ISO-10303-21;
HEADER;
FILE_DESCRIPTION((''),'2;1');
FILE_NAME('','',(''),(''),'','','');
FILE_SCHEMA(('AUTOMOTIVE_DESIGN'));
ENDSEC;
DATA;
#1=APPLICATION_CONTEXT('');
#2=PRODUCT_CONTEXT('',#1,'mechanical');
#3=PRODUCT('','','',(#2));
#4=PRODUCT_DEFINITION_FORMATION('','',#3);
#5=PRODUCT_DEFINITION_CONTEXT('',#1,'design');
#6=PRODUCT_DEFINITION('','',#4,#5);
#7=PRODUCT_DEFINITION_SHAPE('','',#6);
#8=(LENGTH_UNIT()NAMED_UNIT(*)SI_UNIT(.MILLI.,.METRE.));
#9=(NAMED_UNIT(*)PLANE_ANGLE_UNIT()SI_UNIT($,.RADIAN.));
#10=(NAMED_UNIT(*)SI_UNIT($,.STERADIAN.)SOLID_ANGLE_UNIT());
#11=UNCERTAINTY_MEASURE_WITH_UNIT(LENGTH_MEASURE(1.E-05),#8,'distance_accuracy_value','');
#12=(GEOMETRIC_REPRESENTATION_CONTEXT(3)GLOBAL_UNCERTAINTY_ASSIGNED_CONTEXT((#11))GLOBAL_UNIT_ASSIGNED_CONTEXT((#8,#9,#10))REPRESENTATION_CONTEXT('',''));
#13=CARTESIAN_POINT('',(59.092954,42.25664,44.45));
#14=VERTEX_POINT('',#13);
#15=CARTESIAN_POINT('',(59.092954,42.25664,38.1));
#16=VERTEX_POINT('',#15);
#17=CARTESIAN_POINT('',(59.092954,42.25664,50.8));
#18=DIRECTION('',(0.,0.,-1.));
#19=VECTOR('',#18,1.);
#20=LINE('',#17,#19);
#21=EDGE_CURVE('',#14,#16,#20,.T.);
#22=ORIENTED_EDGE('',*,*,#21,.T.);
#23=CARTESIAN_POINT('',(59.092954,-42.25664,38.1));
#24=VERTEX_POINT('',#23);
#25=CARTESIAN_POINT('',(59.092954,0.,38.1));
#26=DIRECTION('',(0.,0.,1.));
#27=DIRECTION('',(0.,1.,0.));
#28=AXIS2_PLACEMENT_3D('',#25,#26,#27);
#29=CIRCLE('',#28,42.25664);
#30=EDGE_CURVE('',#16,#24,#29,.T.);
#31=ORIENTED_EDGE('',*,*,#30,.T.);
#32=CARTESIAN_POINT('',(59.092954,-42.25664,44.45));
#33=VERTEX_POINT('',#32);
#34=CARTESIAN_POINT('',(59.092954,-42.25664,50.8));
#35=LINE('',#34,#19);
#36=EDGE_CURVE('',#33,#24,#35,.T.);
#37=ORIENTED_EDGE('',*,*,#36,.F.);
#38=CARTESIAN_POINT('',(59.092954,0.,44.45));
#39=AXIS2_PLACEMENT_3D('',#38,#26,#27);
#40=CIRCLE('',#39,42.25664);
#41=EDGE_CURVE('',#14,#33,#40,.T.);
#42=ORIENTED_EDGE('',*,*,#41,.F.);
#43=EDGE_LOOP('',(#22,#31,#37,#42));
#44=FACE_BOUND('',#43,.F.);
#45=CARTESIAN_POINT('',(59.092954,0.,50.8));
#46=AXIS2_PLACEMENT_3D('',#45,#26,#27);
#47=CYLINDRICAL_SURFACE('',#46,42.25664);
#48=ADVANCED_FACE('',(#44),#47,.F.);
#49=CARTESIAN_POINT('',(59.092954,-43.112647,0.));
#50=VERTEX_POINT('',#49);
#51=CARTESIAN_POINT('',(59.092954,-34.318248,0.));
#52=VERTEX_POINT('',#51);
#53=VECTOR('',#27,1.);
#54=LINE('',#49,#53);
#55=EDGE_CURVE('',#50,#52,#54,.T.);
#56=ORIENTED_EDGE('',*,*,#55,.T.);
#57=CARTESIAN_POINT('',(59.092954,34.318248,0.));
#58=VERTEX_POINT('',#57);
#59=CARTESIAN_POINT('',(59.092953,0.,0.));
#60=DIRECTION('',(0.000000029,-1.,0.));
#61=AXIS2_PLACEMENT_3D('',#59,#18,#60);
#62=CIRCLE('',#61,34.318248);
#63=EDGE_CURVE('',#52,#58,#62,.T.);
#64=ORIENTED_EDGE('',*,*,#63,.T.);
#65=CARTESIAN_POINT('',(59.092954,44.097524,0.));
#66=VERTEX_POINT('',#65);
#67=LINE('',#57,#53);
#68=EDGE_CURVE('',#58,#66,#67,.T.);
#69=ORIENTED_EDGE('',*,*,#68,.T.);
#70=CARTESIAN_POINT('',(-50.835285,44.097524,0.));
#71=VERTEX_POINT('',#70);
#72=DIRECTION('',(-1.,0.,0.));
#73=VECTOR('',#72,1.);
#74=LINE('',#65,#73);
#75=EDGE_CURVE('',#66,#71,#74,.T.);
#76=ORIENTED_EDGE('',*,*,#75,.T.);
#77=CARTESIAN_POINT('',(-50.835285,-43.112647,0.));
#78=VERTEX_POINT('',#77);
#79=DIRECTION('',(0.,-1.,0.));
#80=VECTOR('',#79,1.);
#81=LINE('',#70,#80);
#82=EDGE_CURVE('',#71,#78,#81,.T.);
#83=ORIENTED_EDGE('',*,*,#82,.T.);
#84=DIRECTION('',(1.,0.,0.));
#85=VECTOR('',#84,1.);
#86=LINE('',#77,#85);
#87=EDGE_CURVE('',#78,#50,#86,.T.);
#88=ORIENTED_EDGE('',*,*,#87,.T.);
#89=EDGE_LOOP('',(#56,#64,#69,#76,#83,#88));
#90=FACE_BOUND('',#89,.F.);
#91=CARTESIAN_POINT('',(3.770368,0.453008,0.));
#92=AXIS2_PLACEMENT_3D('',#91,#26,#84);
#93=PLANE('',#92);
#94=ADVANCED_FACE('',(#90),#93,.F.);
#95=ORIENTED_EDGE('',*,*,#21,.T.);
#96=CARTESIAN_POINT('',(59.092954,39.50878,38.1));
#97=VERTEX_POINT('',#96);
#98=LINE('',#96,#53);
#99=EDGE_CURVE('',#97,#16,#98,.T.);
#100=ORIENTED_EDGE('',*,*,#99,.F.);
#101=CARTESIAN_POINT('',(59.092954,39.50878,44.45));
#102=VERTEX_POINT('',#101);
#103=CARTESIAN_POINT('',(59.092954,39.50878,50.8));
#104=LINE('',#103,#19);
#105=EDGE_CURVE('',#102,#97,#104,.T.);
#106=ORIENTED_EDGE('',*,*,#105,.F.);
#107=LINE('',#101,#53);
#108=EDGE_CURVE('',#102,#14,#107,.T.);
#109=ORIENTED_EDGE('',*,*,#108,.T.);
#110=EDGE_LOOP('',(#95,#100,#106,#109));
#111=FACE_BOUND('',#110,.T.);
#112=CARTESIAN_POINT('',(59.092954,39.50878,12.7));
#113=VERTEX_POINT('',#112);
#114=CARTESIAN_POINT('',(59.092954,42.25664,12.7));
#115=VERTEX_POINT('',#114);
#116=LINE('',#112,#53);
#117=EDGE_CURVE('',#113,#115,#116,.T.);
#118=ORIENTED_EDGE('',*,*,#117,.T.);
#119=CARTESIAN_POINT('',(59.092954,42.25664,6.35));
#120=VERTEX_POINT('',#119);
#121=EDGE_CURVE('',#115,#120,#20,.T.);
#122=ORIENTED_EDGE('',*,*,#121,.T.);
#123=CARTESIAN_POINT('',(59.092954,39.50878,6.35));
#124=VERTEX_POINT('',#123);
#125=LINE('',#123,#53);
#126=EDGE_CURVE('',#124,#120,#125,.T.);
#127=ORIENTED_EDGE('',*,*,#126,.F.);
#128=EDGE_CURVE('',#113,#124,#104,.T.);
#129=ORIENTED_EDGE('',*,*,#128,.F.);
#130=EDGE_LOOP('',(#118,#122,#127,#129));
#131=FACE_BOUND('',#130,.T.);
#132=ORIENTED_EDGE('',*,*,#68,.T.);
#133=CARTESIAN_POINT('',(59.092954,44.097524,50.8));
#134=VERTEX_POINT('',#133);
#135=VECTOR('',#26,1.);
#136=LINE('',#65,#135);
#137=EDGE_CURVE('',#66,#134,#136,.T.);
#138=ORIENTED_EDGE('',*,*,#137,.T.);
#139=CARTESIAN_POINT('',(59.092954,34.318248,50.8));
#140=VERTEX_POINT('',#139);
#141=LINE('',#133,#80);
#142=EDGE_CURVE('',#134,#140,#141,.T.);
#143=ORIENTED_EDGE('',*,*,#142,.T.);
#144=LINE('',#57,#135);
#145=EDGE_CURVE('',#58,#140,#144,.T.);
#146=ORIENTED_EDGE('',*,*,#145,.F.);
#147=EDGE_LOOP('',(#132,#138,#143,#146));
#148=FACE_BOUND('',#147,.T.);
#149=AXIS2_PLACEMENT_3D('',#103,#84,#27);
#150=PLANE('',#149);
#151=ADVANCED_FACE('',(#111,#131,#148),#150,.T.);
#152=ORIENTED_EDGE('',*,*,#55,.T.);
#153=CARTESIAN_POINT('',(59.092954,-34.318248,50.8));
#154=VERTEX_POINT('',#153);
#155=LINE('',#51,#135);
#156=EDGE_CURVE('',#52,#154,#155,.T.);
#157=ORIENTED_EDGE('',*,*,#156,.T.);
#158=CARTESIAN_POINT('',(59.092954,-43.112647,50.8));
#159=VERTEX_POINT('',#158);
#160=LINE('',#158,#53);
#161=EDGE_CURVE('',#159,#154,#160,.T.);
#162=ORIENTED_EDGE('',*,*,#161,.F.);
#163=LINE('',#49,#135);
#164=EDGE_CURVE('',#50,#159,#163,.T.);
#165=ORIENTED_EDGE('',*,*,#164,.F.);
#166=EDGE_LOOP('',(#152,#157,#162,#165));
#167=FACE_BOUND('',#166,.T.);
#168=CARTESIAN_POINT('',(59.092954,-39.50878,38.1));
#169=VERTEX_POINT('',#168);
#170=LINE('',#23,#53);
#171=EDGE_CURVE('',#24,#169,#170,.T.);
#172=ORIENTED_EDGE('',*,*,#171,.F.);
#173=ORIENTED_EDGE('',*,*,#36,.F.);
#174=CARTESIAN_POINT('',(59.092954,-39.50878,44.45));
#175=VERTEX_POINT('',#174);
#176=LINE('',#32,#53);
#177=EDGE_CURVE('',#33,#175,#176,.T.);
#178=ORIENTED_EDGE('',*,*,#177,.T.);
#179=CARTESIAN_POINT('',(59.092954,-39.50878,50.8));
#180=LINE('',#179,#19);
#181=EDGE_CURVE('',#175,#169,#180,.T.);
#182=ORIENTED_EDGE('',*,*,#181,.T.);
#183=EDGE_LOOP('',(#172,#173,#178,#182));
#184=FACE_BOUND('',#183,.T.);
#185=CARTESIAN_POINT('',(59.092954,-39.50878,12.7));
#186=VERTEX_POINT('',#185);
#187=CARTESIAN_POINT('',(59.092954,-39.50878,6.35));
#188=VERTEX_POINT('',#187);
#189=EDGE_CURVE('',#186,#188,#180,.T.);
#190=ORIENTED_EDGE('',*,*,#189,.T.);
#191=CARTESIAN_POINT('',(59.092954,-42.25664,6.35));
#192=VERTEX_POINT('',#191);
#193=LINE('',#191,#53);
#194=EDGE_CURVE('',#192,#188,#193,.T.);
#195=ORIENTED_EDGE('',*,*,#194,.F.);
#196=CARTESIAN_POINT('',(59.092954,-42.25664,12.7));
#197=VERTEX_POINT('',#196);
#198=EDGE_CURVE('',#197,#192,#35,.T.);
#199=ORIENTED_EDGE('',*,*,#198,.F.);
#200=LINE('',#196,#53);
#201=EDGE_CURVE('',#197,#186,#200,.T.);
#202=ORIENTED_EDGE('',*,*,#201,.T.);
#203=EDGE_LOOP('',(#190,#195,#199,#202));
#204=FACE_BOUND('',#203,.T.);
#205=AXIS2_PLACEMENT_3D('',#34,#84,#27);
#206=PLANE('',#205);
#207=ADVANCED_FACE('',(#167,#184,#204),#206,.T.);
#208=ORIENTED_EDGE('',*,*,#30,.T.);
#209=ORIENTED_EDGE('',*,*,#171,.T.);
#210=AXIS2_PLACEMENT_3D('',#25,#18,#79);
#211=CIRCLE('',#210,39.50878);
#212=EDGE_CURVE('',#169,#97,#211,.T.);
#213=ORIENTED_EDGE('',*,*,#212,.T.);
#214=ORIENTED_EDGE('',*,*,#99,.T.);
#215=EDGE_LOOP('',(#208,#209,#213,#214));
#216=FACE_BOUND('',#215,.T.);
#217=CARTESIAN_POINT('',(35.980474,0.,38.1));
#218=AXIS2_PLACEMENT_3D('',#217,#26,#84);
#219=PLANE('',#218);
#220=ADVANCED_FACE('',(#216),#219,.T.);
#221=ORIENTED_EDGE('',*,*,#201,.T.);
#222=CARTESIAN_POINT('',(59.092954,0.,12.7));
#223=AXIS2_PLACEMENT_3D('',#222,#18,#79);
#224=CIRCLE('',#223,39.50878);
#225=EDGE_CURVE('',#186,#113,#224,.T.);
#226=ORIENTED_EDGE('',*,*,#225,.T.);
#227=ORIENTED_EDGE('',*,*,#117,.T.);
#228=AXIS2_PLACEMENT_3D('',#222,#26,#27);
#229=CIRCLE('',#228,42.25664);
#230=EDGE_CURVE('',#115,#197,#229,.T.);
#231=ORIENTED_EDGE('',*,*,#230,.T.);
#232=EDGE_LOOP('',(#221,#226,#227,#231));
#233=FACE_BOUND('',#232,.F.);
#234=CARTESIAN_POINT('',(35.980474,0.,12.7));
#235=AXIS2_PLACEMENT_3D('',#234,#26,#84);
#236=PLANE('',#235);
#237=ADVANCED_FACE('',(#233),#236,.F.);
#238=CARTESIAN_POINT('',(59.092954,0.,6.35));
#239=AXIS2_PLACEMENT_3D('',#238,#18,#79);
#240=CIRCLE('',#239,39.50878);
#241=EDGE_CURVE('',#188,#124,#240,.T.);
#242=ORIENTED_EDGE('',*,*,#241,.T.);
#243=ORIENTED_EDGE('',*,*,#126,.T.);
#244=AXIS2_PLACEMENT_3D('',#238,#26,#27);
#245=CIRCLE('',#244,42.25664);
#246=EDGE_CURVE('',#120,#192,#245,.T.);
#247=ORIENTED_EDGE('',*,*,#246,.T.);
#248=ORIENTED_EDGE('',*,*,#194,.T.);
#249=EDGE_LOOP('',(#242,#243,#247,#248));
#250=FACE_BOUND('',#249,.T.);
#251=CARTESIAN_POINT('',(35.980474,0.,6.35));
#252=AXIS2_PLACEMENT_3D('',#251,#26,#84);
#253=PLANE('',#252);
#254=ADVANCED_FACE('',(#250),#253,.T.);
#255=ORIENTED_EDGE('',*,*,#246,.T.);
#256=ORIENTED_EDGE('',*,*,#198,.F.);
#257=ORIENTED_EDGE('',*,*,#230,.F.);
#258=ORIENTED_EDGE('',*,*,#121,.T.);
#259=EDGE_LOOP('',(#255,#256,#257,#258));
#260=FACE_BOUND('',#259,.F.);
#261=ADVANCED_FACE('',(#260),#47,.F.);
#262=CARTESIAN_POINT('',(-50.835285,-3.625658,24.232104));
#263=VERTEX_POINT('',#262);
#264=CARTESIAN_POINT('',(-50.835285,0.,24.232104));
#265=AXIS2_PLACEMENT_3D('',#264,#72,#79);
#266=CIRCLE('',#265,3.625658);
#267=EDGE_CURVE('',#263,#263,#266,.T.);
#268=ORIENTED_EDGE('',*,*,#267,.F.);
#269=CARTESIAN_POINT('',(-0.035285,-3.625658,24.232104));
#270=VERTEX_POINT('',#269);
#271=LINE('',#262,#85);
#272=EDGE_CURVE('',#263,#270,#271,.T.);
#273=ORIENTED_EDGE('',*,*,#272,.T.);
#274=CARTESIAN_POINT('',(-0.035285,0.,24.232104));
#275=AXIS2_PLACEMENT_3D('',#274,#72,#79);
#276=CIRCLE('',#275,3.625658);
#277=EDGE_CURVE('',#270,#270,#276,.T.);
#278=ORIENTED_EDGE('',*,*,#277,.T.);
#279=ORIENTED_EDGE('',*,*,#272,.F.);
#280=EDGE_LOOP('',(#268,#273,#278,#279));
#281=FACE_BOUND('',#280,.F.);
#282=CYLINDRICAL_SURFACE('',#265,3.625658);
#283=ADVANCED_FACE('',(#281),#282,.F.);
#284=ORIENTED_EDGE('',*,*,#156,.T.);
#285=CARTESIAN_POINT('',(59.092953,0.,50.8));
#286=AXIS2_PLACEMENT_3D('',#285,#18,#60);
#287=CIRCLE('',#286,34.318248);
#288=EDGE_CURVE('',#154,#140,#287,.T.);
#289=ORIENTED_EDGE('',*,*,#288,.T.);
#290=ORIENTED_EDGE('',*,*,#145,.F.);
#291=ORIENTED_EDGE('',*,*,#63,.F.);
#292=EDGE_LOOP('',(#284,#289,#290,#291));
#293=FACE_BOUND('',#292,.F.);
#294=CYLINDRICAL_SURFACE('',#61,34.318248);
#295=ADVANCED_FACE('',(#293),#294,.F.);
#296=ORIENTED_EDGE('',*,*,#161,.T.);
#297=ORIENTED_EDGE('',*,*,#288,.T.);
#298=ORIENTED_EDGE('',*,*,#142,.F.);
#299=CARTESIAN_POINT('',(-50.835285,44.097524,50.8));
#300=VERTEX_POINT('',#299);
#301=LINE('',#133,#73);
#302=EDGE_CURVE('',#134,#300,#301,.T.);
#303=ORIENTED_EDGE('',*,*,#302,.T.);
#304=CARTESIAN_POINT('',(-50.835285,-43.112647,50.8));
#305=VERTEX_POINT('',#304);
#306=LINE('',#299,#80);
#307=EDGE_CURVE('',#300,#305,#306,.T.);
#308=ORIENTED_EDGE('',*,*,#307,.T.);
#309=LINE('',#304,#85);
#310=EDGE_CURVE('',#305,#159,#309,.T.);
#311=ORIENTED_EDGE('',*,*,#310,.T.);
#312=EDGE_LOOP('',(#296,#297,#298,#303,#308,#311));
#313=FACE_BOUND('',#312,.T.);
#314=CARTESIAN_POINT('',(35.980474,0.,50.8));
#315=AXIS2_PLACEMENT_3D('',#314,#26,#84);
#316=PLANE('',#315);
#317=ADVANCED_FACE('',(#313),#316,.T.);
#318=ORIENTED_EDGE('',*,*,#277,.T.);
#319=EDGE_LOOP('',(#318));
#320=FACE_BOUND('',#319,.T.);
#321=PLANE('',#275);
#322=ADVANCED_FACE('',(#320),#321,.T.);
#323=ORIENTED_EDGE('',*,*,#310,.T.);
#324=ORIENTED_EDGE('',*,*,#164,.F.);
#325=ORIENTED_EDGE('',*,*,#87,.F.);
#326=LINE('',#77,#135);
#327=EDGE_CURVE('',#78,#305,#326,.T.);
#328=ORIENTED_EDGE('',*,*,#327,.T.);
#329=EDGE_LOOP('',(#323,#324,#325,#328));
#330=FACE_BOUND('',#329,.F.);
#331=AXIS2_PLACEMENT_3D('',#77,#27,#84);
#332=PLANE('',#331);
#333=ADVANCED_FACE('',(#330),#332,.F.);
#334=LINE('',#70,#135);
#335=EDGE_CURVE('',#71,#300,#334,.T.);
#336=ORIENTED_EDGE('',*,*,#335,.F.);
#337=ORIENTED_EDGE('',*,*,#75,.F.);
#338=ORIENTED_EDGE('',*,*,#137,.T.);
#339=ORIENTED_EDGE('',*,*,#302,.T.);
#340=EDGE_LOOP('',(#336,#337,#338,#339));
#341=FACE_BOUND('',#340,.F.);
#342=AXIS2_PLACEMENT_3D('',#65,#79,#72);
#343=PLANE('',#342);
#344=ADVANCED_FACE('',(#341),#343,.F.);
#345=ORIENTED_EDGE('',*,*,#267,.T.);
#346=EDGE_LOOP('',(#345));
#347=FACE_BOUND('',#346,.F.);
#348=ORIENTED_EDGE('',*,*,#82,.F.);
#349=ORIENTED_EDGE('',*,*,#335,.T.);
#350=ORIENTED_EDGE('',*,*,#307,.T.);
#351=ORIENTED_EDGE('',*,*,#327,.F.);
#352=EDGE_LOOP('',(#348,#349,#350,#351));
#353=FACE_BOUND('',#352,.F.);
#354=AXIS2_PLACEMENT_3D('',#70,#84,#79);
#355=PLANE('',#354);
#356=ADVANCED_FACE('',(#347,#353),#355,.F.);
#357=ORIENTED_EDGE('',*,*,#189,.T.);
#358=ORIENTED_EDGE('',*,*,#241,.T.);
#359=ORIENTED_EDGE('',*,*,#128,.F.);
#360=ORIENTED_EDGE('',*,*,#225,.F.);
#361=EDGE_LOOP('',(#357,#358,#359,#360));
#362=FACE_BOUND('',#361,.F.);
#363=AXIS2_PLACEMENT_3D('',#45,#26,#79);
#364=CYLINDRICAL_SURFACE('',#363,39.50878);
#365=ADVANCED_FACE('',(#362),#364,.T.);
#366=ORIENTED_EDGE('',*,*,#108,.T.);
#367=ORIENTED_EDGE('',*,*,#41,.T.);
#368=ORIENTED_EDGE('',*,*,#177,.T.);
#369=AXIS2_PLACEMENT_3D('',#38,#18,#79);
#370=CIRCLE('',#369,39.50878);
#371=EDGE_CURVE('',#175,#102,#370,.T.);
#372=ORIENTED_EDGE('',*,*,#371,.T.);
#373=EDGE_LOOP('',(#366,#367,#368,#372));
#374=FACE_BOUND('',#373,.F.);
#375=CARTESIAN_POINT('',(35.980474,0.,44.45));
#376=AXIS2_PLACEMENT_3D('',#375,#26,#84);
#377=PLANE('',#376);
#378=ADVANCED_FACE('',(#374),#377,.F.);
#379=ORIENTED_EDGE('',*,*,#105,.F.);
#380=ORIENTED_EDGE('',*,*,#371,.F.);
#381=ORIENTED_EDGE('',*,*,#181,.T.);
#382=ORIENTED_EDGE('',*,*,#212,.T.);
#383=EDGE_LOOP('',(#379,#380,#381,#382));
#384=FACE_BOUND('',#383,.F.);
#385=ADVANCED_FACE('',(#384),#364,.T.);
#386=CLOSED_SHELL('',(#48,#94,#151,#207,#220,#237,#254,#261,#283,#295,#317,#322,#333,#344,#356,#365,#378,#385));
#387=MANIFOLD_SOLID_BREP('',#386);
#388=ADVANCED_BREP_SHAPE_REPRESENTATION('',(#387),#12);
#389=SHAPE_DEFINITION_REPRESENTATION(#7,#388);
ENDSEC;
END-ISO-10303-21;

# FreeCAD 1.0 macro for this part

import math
import FreeCAD as App
import Part
import Sketcher
from FreeCAD import Vector
Q = App.Units.Quantity

doc = App.newDocument("Part")
body = doc.addObject("PartDesign::Body", "Body")

# Sketch on XY plane
sketch1 = body.newObject("Sketcher::SketchObject", "Sketch")
sketch1.AttachmentSupport = (doc.getObject("XY_Plane"), [""])
sketch1.MapMode = "FlatFace"
sketch1.addGeometry([
    Part.LineSegment(Vector(59, 44, 0), Vector(-51, 44, 0)),  # 0
    Part.LineSegment(Vector(-51, 44, 0), Vector(-51, -43, 0)),  # 1
    Part.LineSegment(Vector(-51, -43, 0), Vector(59, -43, 0)),  # 2
    Part.LineSegment(Vector(59, -43, 0), Vector(59, -34, 0)),  # 3
    Part.ArcOfCircle(Part.Circle(Vector(59, 0, 0), Vector(0, 0, 1), 34), math.radians(90), math.radians(270)),  # 4
    Part.LineSegment(Vector(59, 34, 0), Vector(59, 44, 0)),  # 5
], False)
sketch1.addConstraint([
    Sketcher.Constraint("Coincident", 0, 2, 1, 1),
    Sketcher.Constraint("Coincident", 1, 2, 2, 1),
    Sketcher.Constraint("Coincident", 2, 2, 3, 1),
    Sketcher.Constraint("Coincident", 3, 2, 4, 2),
    Sketcher.Constraint("Coincident", 4, 1, 5, 1),
    Sketcher.Constraint("Coincident", 5, 2, 0, 1),
    Sketcher.Constraint("Horizontal", 0),
    Sketcher.Constraint("Vertical", 1),
    Sketcher.Constraint("Horizontal", 2),
    Sketcher.Constraint("Vertical", 3),
    Sketcher.Constraint("Vertical", 5),
    Sketcher.Constraint("Symmetric", 3, 2, 4, 1, -1),
    Sketcher.Constraint("Vertical", 4, 3, 2, 2),
    Sketcher.Constraint("DistanceY", 3, 1, 3, 2, 8.794399),
    Sketcher.Constraint("Radius", 4, 34.318248),
    Sketcher.Constraint("DistanceX", 0, 2, 0, 1, 109.928239),
    Sketcher.Constraint("DistanceY", 1, 2, 1, 1, 87.210171),
    Sketcher.Constraint("DistanceX", -1, 1, 4, 3, 59.092953),
])
pad1 = body.newObject("PartDesign::Pad", "Pad")
pad1.Profile = sketch1
pad1.Length = Q("2 in")

# Sketch on YZ plane
sketch2 = body.newObject("Sketcher::SketchObject", "Sketch001")
sketch2.AttachmentSupport = (doc.getObject("YZ_Plane"), [""])
sketch2.MapMode = "FlatFace"
sketch2.AttachmentOffset = App.Placement(Vector(0, 0, -50.835285), App.Rotation())
sketch2.addGeometry(Part.Circle(Vector(0, 24.2, 0), Vector(0, 0, 1), 3.6), False)
sketch2.addConstraint([
    Sketcher.Constraint("PointOnObject", 0, 3, -2),
    Sketcher.Constraint("Diameter", 0, 7.251316),
    Sketcher.Constraint("DistanceY", -1, 1, 0, 3, 24.232104),
])
pocket1 = body.newObject("PartDesign::Pocket", "Pocket")
pocket1.Profile = sketch2
pocket1.Length = Q("2 in")
pocket1.Reversed = True

# Sketch on XY plane
sketch3 = body.newObject("Sketcher::SketchObject", "Sketch002")
sketch3.AttachmentSupport = (doc.getObject("XY_Plane"), [""])
sketch3.MapMode = "FlatFace"
sketch3.AttachmentOffset = App.Placement(Vector(0, 0, 2 * 25.4), App.Rotation())
sketch3.addGeometry([
    Part.ArcOfCircle(Part.Circle(Vector(59.1, 0, 0), Vector(0, 0, 1), 39.5), math.radians(90), math.radians(270)),
    Part.LineSegment(Vector(59.1, 39.5, 0), Vector(59.1, 42.3, 0)),
    Part.ArcOfCircle(Part.Circle(Vector(59.1, 0, 0), Vector(0, 0, 1), 42.3), math.radians(90), math.radians(270)),
    Part.LineSegment(Vector(59.1, -42.3, 0), Vector(59.1, -39.5, 0)),
], False)
sketch3.addConstraint([
    Sketcher.Constraint("Coincident", 0, 1, 1, 1),
    Sketcher.Constraint("Coincident", 1, 2, 2, 1),
    Sketcher.Constraint("Coincident", 2, 2, 3, 1),
    Sketcher.Constraint("Coincident", 3, 2, 0, 2),
    Sketcher.Constraint("Vertical", 1),
    Sketcher.Constraint("Vertical", 3),
    Sketcher.Constraint("Coincident", 2, 3, 0, 3),
    Sketcher.Constraint("Symmetric", 1, 2, 2, 2, -1),
    Sketcher.Constraint("Vertical", 2, 3, 0, 1),
    Sketcher.Constraint("Radius", 0, 39.50878),
    Sketcher.Constraint("Radius", 2, 42.25664),
    Sketcher.Constraint("DistanceX", -1, 1, 0, 3, 59.092954),
])
pocket2 = body.newObject("PartDesign::Pocket", "Pocket001")
pocket2.Profile = sketch3
pocket2.Length = Q("1.75 in")

# Sketch on XY plane
sketch4 = body.newObject("Sketcher::SketchObject", "Sketch003")
sketch4.AttachmentSupport = (doc.getObject("XY_Plane"), [""])
sketch4.MapMode = "FlatFace"
sketch4.AttachmentOffset = App.Placement(Vector(0, 0, 2 * 25.4), App.Rotation())
sketch4.addGeometry([
    Part.ArcOfCircle(Part.Circle(Vector(59.1, 0, 0), Vector(0, 0, 1), 39.5), math.radians(90), math.radians(270)),
    Part.LineSegment(Vector(59.1, 39.5, 0), Vector(59.1, 42.3, 0)),
    Part.ArcOfCircle(Part.Circle(Vector(59.1, 0, 0), Vector(0, 0, 1), 42.3), math.radians(90), math.radians(270)),
    Part.LineSegment(Vector(59.1, -42.3, 0), Vector(59.1, -39.5, 0)),
], False)
sketch4.addConstraint([
    Sketcher.Constraint("Coincident", 0, 1, 1, 1),
    Sketcher.Constraint("Coincident", 1, 2, 2, 1),
    Sketcher.Constraint("Coincident", 2, 2, 3, 1),
    Sketcher.Constraint("Coincident", 3, 2, 0, 2),
    Sketcher.Constraint("Vertical", 1),
    Sketcher.Constraint("Vertical", 3),
    Sketcher.Constraint("Coincident", 2, 3, 0, 3),
    Sketcher.Constraint("Symmetric", 1, 2, 2, 2, -1),
    Sketcher.Constraint("Vertical", 2, 3, 0, 1),
    Sketcher.Constraint("Radius", 0, 39.50878),
    Sketcher.Constraint("Radius", 2, 42.25664),
    Sketcher.Constraint("DistanceX", -1, 1, 0, 3, 59.092954),
])
pad2 = body.newObject("PartDesign::Pad", "Pad001")
pad2.Profile = sketch4
pad2.Length = Q("1.5 in")
pad2.Reversed = True

# Sketch on XY plane
sketch5 = body.newObject("Sketcher::SketchObject", "Sketch004")
sketch5.AttachmentSupport = (doc.getObject("XY_Plane"), [""])
sketch5.MapMode = "FlatFace"
sketch5.AttachmentOffset = App.Placement(Vector(0, 0, 2 * 25.4), App.Rotation())
sketch5.addGeometry([
    Part.ArcOfCircle(Part.Circle(Vector(59.1, 0, 0), Vector(0, 0, 1), 39.5), math.radians(90), math.radians(270)),
    Part.LineSegment(Vector(59.1, 39.5, 0), Vector(59.1, 42.3, 0)),
    Part.ArcOfCircle(Part.Circle(Vector(59.1, 0, 0), Vector(0, 0, 1), 42.3), math.radians(90), math.radians(270)),
    Part.LineSegment(Vector(59.1, -42.3, 0), Vector(59.1, -39.5, 0)),
], False)
sketch5.addConstraint([
    Sketcher.Constraint("Coincident", 0, 1, 1, 1),
    Sketcher.Constraint("Coincident", 1, 2, 2, 1),
    Sketcher.Constraint("Coincident", 2, 2, 3, 1),
    Sketcher.Constraint("Coincident", 3, 2, 0, 2),
    Sketcher.Constraint("Vertical", 1),
    Sketcher.Constraint("Vertical", 3),
    Sketcher.Constraint("Coincident", 2, 3, 0, 3),
    Sketcher.Constraint("Symmetric", 1, 2, 2, 2, -1),
    Sketcher.Constraint("Vertical", 2, 3, 0, 1),
    Sketcher.Constraint("Radius", 0, 39.50878),
    Sketcher.Constraint("Radius", 2, 42.25664),
    Sketcher.Constraint("DistanceX", -1, 1, 0, 3, 59.092954),
])
pocket3 = body.newObject("PartDesign::Pocket", "Pocket002")
pocket3.Profile = sketch5
pocket3.Length = Q("0.5 in")

# Sketch on XY plane
sketch6 = body.newObject("Sketcher::SketchObject", "Sketch005")
sketch6.AttachmentSupport = (doc.getObject("XY_Plane"), [""])
sketch6.MapMode = "FlatFace"
sketch6.AttachmentOffset = App.Placement(Vector(0, 0, 2 * 25.4), App.Rotation())
sketch6.addGeometry([
    Part.ArcOfCircle(Part.Circle(Vector(59.1, 0, 0), Vector(0, 0, 1), 39.5), math.radians(90), math.radians(270)),
    Part.LineSegment(Vector(59.1, 39.5, 0), Vector(59.1, 42.3, 0)),
    Part.ArcOfCircle(Part.Circle(Vector(59.1, 0, 0), Vector(0, 0, 1), 42.3), math.radians(90), math.radians(270)),
    Part.LineSegment(Vector(59.1, -42.3, 0), Vector(59.1, -39.5, 0)),
], False)
sketch6.addConstraint([
    Sketcher.Constraint("Coincident", 0, 1, 1, 1),
    Sketcher.Constraint("Coincident", 1, 2, 2, 1),
    Sketcher.Constraint("Coincident", 2, 2, 3, 1),
    Sketcher.Constraint("Coincident", 3, 2, 0, 2),
    Sketcher.Constraint("Vertical", 1),
    Sketcher.Constraint("Vertical", 3),
    Sketcher.Constraint("Coincident", 2, 3, 0, 3),
    Sketcher.Constraint("Symmetric", 1, 2, 2, 2, -1),
    Sketcher.Constraint("Vertical", 2, 3, 0, 1),
    Sketcher.Constraint("Radius", 0, 39.50878),
    Sketcher.Constraint("Radius", 2, 42.25664),
    Sketcher.Constraint("DistanceX", -1, 1, 0, 3, 59.092954),
])
pad3 = body.newObject("PartDesign::Pad", "Pad002")
pad3.Profile = sketch6
pad3.Length = Q("0.25 in")
pad3.Reversed = True

doc.recompute()
